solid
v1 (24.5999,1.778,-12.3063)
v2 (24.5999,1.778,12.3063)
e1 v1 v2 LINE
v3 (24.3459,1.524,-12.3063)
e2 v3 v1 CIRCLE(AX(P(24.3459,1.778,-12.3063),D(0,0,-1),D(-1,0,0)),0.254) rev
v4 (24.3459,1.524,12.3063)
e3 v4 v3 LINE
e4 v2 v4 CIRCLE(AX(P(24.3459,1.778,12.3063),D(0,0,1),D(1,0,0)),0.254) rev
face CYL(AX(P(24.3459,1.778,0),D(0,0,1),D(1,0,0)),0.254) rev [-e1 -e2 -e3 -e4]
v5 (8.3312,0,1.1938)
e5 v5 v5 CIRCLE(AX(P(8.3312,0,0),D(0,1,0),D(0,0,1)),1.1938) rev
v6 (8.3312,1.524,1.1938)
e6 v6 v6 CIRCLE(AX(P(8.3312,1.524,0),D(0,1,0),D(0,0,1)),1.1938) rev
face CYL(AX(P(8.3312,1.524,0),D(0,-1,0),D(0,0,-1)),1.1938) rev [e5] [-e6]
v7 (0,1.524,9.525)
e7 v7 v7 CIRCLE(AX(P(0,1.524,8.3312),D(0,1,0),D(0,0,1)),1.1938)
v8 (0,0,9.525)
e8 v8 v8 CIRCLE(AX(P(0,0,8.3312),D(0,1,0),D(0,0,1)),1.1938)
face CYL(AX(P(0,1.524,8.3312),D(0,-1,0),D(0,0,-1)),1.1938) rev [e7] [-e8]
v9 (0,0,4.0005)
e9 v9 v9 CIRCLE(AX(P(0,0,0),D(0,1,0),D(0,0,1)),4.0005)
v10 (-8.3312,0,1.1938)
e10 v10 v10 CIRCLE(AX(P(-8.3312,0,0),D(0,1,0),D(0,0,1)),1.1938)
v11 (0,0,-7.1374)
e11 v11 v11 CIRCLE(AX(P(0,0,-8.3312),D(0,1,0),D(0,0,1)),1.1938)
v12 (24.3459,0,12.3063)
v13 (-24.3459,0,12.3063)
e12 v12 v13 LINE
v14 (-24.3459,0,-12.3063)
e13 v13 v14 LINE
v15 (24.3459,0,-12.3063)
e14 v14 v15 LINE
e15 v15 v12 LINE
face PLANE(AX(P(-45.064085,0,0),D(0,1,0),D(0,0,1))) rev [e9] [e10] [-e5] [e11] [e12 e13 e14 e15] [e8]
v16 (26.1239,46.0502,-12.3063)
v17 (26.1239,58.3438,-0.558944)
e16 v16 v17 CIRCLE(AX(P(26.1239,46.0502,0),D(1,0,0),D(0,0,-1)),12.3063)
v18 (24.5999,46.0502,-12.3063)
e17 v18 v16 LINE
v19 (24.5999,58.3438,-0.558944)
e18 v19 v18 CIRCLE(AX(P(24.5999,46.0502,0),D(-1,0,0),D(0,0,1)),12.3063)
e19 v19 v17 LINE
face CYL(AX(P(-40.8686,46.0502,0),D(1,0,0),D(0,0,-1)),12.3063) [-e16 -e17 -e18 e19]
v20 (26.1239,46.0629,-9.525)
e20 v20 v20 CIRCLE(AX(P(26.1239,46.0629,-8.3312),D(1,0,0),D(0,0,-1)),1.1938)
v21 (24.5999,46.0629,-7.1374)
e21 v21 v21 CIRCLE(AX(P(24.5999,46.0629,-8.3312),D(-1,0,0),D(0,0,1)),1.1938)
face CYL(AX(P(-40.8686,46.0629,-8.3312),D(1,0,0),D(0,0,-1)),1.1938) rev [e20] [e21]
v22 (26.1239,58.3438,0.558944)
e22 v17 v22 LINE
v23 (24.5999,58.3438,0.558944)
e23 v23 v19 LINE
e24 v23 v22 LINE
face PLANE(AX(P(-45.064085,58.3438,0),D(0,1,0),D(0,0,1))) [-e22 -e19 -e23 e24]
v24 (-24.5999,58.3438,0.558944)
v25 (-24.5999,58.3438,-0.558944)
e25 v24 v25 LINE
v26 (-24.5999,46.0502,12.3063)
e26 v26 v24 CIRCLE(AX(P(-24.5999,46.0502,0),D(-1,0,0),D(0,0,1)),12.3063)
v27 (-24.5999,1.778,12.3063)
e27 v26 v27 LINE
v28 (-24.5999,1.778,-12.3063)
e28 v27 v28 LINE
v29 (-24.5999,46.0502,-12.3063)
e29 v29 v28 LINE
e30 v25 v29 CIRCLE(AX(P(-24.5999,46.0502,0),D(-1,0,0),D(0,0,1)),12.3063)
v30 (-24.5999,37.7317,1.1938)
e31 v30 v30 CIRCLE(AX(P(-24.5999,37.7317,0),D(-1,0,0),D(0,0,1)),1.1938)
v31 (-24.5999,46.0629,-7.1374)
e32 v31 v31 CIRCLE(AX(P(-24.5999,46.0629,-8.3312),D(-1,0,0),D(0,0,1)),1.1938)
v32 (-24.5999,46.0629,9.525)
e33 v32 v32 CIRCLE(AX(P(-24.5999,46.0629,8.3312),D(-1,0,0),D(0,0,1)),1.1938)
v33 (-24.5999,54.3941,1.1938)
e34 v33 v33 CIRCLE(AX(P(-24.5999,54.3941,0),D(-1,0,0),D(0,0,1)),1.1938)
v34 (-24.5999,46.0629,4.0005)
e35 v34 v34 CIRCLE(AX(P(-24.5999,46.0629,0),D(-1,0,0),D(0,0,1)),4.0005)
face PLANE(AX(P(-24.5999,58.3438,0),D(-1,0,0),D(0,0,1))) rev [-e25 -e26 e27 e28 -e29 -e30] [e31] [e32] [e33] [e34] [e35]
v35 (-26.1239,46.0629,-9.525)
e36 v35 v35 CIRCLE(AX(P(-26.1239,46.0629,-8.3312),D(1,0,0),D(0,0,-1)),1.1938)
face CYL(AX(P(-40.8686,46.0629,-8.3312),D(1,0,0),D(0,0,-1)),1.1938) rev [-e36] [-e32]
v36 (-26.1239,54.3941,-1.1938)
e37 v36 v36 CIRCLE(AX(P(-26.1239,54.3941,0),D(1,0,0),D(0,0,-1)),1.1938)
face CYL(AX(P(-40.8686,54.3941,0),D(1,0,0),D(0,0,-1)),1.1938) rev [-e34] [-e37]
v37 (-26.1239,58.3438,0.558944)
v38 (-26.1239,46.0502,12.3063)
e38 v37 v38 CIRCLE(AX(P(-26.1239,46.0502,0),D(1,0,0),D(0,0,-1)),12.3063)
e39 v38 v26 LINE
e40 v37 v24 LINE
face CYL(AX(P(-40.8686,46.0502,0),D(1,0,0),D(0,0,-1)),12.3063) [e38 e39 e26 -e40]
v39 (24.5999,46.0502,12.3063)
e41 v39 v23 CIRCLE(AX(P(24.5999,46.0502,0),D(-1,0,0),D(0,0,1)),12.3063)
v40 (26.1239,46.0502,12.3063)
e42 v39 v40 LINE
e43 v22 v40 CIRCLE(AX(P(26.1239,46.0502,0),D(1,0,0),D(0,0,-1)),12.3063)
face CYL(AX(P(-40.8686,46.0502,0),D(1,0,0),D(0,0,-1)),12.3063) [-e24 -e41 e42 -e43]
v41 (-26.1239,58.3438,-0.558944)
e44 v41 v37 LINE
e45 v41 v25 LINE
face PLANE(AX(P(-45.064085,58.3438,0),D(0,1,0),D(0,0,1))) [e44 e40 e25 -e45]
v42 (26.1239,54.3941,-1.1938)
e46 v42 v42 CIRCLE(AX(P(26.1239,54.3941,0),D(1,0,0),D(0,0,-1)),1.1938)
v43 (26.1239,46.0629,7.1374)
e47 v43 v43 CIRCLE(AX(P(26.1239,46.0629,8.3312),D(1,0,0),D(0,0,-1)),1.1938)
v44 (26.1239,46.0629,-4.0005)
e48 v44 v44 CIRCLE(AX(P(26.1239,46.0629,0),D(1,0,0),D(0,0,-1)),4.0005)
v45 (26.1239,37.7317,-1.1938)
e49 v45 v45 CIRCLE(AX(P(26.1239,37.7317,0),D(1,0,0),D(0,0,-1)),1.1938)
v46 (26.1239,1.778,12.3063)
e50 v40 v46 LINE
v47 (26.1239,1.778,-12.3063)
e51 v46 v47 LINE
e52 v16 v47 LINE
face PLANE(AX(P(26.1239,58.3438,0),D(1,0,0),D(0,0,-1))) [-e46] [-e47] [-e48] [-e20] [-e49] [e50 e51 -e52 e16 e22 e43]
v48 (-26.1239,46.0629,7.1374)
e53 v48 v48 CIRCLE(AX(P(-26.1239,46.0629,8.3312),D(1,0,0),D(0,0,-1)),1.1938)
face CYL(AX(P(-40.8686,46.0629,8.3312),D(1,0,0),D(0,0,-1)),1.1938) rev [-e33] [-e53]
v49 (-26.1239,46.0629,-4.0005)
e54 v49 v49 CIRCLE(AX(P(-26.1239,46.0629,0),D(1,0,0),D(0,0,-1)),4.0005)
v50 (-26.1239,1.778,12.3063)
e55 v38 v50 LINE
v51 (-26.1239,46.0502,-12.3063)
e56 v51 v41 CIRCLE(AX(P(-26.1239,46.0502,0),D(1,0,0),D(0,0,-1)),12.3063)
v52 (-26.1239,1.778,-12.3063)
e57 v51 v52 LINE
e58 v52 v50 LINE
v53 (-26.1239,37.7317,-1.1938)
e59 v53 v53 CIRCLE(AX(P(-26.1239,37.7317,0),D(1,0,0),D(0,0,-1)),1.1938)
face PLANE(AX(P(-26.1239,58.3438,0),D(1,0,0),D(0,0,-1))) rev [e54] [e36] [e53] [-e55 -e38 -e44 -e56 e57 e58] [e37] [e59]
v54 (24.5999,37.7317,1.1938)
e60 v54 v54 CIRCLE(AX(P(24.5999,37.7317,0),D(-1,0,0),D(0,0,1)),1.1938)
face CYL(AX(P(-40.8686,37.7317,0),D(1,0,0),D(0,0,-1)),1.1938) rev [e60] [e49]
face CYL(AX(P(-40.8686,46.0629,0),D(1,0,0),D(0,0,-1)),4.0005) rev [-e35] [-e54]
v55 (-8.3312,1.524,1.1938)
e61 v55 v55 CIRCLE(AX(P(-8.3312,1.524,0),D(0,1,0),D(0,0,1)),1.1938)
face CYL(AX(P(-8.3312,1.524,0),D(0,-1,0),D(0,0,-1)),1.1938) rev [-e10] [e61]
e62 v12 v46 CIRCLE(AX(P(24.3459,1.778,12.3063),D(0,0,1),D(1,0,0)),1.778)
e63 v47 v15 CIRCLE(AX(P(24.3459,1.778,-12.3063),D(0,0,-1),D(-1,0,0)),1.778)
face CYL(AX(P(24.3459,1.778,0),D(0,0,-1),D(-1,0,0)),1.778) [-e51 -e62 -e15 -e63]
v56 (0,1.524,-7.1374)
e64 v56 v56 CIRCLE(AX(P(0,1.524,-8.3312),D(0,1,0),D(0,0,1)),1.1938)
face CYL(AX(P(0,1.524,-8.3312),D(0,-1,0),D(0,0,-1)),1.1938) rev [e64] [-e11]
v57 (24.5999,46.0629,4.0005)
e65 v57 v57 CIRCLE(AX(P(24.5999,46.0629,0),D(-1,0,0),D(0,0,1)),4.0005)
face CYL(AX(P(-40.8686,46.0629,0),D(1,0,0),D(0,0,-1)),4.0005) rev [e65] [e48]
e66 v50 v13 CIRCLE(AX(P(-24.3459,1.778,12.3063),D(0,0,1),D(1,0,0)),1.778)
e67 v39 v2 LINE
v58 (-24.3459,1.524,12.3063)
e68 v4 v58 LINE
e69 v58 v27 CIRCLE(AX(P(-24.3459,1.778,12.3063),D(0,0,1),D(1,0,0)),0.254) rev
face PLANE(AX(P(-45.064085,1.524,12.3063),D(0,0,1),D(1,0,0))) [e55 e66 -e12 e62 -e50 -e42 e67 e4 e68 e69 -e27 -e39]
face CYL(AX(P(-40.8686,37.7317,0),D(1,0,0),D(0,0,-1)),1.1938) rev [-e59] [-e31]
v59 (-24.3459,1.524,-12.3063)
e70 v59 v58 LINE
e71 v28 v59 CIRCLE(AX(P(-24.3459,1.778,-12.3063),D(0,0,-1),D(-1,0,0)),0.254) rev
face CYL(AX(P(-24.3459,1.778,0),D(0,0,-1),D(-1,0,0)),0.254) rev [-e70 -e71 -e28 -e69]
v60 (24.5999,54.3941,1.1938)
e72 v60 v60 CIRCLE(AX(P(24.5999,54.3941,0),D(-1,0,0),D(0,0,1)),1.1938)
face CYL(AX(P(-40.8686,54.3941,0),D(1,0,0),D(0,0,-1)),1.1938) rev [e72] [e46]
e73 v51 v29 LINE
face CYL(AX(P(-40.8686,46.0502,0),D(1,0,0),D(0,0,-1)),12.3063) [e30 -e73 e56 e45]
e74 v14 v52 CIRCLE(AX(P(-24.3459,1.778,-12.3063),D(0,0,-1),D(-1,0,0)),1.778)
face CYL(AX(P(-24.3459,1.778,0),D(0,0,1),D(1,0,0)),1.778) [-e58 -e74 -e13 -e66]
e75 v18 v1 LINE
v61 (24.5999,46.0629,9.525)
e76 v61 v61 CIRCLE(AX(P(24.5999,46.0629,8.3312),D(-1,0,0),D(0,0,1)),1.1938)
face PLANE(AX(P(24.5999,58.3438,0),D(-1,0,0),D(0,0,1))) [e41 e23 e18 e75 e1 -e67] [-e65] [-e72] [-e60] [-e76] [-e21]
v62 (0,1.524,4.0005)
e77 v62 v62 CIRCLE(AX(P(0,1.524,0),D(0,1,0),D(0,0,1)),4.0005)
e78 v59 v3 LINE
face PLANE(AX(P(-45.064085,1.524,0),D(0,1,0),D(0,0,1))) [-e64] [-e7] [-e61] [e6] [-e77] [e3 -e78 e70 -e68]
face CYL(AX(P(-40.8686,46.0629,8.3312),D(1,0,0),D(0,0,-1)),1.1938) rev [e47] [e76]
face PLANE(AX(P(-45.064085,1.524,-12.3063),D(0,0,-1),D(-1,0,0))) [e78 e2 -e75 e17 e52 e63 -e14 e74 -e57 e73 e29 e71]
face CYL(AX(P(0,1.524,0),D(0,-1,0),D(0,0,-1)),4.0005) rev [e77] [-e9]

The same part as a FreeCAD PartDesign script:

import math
import FreeCAD as App
import Part
import Sketcher
from FreeCAD import Vector
Q = App.Units.Quantity


def edges_at(feature, points):
    """Names of the edges that pass closest to the given points."""
    edges = feature.Shape.Edges
    near = lambda p: min(range(len(edges)), key=lambda i: edges[i].distToShape(Part.Vertex(*p))[0])
    return sorted({f"Edge{near(p) + 1}" for p in points})

doc = App.newDocument("Part")
params = doc.addObject("Spreadsheet::Sheet", "Params")
for row, (alias, value) in enumerate([
    ("sketch1_diameter", "0.094 in"),
    ("sketch1_diameter2", "0.315 in"),
    ("sketch1_width", "1.937 in"),
    ("sketch1_height", "0.969 in"),
    ("pad1_length", "0.06 in"),
    ("sketch2_width", "0.06 in"),
    ("sketch2_height", "0.969 in"),
    ("pad2_length", "2.297 in"),
    ("sketch3_diameter", "0.315 in"),
    ("sketch3_diameter2", "0.094 in"),
    ("sketch3_width", "0.484 in"),
    ("fillet_radius", "0.01 in"),
    ("fillet2_radius", "0.07 in"),
], start=1):
    params.set(f"A{row}", alias)
    params.set(f"B{row}", "=" + value)
    params.setAlias(f"B{row}", alias)

body = doc.addObject("PartDesign::Body", "Body")

# Sketch on XZ plane
sketch1 = doc.addObject("Sketcher::SketchObject", "Sketch")
body.addObject(sketch1)
sketch1.AttachmentSupport = (doc.XZ_Plane, [""])
sketch1.MapMode = "FlatFace"
sketch1.addGeometry(Part.LineSegment(Vector(-24.6, -12.3, 0), Vector(-24.6, 12.3, 0)), False)
sketch1.addGeometry(Part.LineSegment(Vector(-24.6, 12.3, 0), Vector(24.6, 12.3, 0)), False)
sketch1.addGeometry(Part.LineSegment(Vector(24.6, 12.3, 0), Vector(24.6, -12.3, 0)), False)
sketch1.addGeometry(Part.LineSegment(Vector(24.6, -12.3, 0), Vector(-24.6, -12.3, 0)), False)
sketch1.addGeometry(Part.Circle(Vector(0, 8.3, 0), Vector(0, 0, 1), 1.2), False)
sketch1.addGeometry(Part.Circle(Vector(-8.3, 0, 0), Vector(0, 0, 1), 1.2), False)
sketch1.addGeometry(Part.Circle(Vector(0, 0, 0), Vector(0, 0, 1), 4), False)
sketch1.addGeometry(Part.Circle(Vector(8.3, 0, 0), Vector(0, 0, 1), 1.2), False)
sketch1.addGeometry(Part.Circle(Vector(0, -8.3, 0), Vector(0, 0, 1), 1.2), False)
sketch1.addConstraint(Sketcher.Constraint("Coincident", 0, 2, 1, 1))
sketch1.addConstraint(Sketcher.Constraint("Coincident", 1, 2, 2, 1))
sketch1.addConstraint(Sketcher.Constraint("Coincident", 2, 2, 3, 1))
sketch1.addConstraint(Sketcher.Constraint("Coincident", 3, 2, 0, 1))
sketch1.addConstraint(Sketcher.Constraint("Vertical", 0))
sketch1.addConstraint(Sketcher.Constraint("Horizontal", 1))
sketch1.addConstraint(Sketcher.Constraint("Vertical", 2))
sketch1.addConstraint(Sketcher.Constraint("Horizontal", 3))
sketch1.addConstraint(Sketcher.Constraint("Coincident", 6, 3, -1, 1))
sketch1.addConstraint(Sketcher.Constraint("Equal", 4, 5))
sketch1.addConstraint(Sketcher.Constraint("Equal", 5, 7))
sketch1.addConstraint(Sketcher.Constraint("Equal", 7, 8))
sketch1.addConstraint(Sketcher.Constraint("Symmetric", 5, 3, 7, 3, -1, 1))
sketch1.addConstraint(Sketcher.Constraint("Symmetric", 4, 3, 8, 3, -1, 1))
sketch1.addConstraint(Sketcher.Constraint("Symmetric", 0, 2, 2, 2, -1, 1))
sketch1.addConstraint(Sketcher.Constraint("PointOnObject", 4, 3, -2))
sketch1.addConstraint(Sketcher.Constraint("PointOnObject", 5, 3, -1))
sketch1.addConstraint(Sketcher.Constraint("Diameter", 4, Q("0.094 in")))
sketch1.addConstraint(Sketcher.Constraint("Diameter", 6, Q("0.315 in")))
sketch1.addConstraint(Sketcher.Constraint("DistanceX", 1, 1, 1, 2, Q("1.937 in")))
sketch1.addConstraint(Sketcher.Constraint("DistanceY", 0, 1, 0, 2, Q("0.969 in")))
sketch1.addConstraint(Sketcher.Constraint("DistanceY", -1, 1, 4, 3, Q("0.328 in")))
sketch1.addConstraint(Sketcher.Constraint("DistanceX", 5, 3, -1, 1, Q("0.328 in")))
sketch1.setExpression("Constraints[17]", "Params.sketch1_diameter")
sketch1.setExpression("Constraints[18]", "Params.sketch1_diameter2")
sketch1.setExpression("Constraints[19]", "Params.sketch1_width")
sketch1.setExpression("Constraints[20]", "Params.sketch1_height")
pad1 = doc.addObject("PartDesign::Pad", "Pad")
body.addObject(pad1)
pad1.Profile = sketch1
pad1.setExpression("Length", "Params.pad1_length")
pad1.Reversed = True

# Sketch on XZ plane
sketch2 = doc.addObject("Sketcher::SketchObject", "Sketch001")
body.addObject(sketch2)
sketch2.AttachmentSupport = (doc.XZ_Plane, [""])
sketch2.MapMode = "FlatFace"
sketch2.addGeometry(Part.LineSegment(Vector(24.6, -12.3, 0), Vector(24.6, 12.3, 0)), False)
sketch2.addGeometry(Part.LineSegment(Vector(24.6, 12.3, 0), Vector(26.1, 12.3, 0)), False)
sketch2.addGeometry(Part.LineSegment(Vector(26.1, 12.3, 0), Vector(26.1, -12.3, 0)), False)
sketch2.addGeometry(Part.LineSegment(Vector(26.1, -12.3, 0), Vector(24.6, -12.3, 0)), False)
sketch2.addGeometry(Part.LineSegment(Vector(-26.1, -12.3, 0), Vector(-26.1, 12.3, 0)), False)
sketch2.addGeometry(Part.LineSegment(Vector(-26.1, 12.3, 0), Vector(-24.6, 12.3, 0)), False)
sketch2.addGeometry(Part.LineSegment(Vector(-24.6, 12.3, 0), Vector(-24.6, -12.3, 0)), False)
sketch2.addGeometry(Part.LineSegment(Vector(-24.6, -12.3, 0), Vector(-26.1, -12.3, 0)), False)
sketch2.addConstraint(Sketcher.Constraint("Coincident", 0, 2, 1, 1))
sketch2.addConstraint(Sketcher.Constraint("Coincident", 1, 2, 2, 1))
sketch2.addConstraint(Sketcher.Constraint("Coincident", 2, 2, 3, 1))
sketch2.addConstraint(Sketcher.Constraint("Coincident", 3, 2, 0, 1))
sketch2.addConstraint(Sketcher.Constraint("Coincident", 4, 2, 5, 1))
sketch2.addConstraint(Sketcher.Constraint("Coincident", 5, 2, 6, 1))
sketch2.addConstraint(Sketcher.Constraint("Coincident", 6, 2, 7, 1))
sketch2.addConstraint(Sketcher.Constraint("Coincident", 7, 2, 4, 1))
sketch2.addConstraint(Sketcher.Constraint("Vertical", 0))
sketch2.addConstraint(Sketcher.Constraint("Horizontal", 1))
sketch2.addConstraint(Sketcher.Constraint("Vertical", 2))
sketch2.addConstraint(Sketcher.Constraint("Horizontal", 3))
sketch2.addConstraint(Sketcher.Constraint("Vertical", 4))
sketch2.addConstraint(Sketcher.Constraint("Horizontal", 5))
sketch2.addConstraint(Sketcher.Constraint("Vertical", 6))
sketch2.addConstraint(Sketcher.Constraint("Horizontal", 7))
sketch2.addConstraint(Sketcher.Constraint("Symmetric", 2, 2, 4, 2, -1, 1))
sketch2.addConstraint(Sketcher.Constraint("Symmetric", 0, 2, 6, 2, -1, 1))
sketch2.addConstraint(Sketcher.Constraint("Horizontal", 1, 2, 4, 2))
sketch2.addConstraint(Sketcher.Constraint("DistanceX", 1, 1, 1, 2, Q("0.06 in")))
sketch2.addConstraint(Sketcher.Constraint("DistanceY", 0, 1, 0, 2, Q("0.969 in")))
sketch2.addConstraint(Sketcher.Constraint("DistanceX", 4, 2, 0, 2, Q("1.997 in")))
sketch2.setExpression("Constraints[19]", "Params.sketch2_width")
sketch2.setExpression("Constraints[20]", "Params.sketch2_height")
pad2 = doc.addObject("PartDesign::Pad", "Pad001")
body.addObject(pad2)
pad2.Profile = sketch2
pad2.setExpression("Length", "Params.pad2_length")
pad2.Reversed = True

# Sketch on YZ plane
sketch3 = doc.addObject("Sketcher::SketchObject", "Sketch002")
body.addObject(sketch3)
sketch3.AttachmentSupport = (doc.YZ_Plane, [""])
sketch3.MapMode = "FlatFace"
sketch3.addGeometry(Part.LineSegment(Vector(58.3, 0.6, 0), Vector(58.3, 12.3, 0)), False)
sketch3.addGeometry(Part.LineSegment(Vector(58.3, 12.3, 0), Vector(46.1, 12.3, 0)), False)
sketch3.addGeometry(Part.ArcOfCircle(Part.Circle(Vector(46.1, 0, 0), Vector(0, 0, 1), 12.3), math.radians(3), math.radians(90)), False)
sketch3.addGeometry(Part.LineSegment(Vector(58.3, -12.3, 0), Vector(58.3, -0.6, 0)), False)
sketch3.addGeometry(Part.ArcOfCircle(Part.Circle(Vector(46.1, 0, 0), Vector(0, 0, 1), 12.3), math.radians(-90), math.radians(-3)), False)
sketch3.addGeometry(Part.LineSegment(Vector(46.1, -12.3, 0), Vector(58.3, -12.3, 0)), False)
sketch3.addGeometry(Part.Circle(Vector(46.1, 0, 0), Vector(0, 0, 1), 4), False)
sketch3.addGeometry(Part.Circle(Vector(46.1, -8.3, 0), Vector(0, 0, 1), 1.2), False)
sketch3.addGeometry(Part.Circle(Vector(54.4, 0, 0), Vector(0, 0, 1), 1.2), False)
sketch3.addGeometry(Part.Circle(Vector(46.1, 8.3, 0), Vector(0, 0, 1), 1.2), False)
sketch3.addGeometry(Part.Circle(Vector(37.7, 0, 0), Vector(0, 0, 1), 1.2), False)
sketch3.addConstraint(Sketcher.Constraint("Coincident", 0, 2, 1, 1))
sketch3.addConstraint(Sketcher.Constraint("Tangent", 1, 2, 2, 2))
sketch3.addConstraint(Sketcher.Constraint("Coincident", 2, 1, 0, 1))
sketch3.addConstraint(Sketcher.Constraint("Coincident", 3, 2, 4, 2))
sketch3.addConstraint(Sketcher.Constraint("Tangent", 4, 1, 5, 1))
sketch3.addConstraint(Sketcher.Constraint("Coincident", 5, 2, 3, 1))
sketch3.addConstraint(Sketcher.Constraint("Vertical", 0))
sketch3.addConstraint(Sketcher.Constraint("Horizontal", 1))
sketch3.addConstraint(Sketcher.Constraint("Vertical", 3))
sketch3.addConstraint(Sketcher.Constraint("Horizontal", 5))
sketch3.addConstraint(Sketcher.Constraint("Coincident", 4, 3, 2, 3))
sketch3.addConstraint(Sketcher.Constraint("Equal", 2, 4))
sketch3.addConstraint(Sketcher.Constraint("Equal", 7, 8))
sketch3.addConstraint(Sketcher.Constraint("Equal", 8, 9))
sketch3.addConstraint(Sketcher.Constraint("Equal", 9, 10))
sketch3.addConstraint(Sketcher.Constraint("Symmetric", 7, 3, 9, 3, -1))
sketch3.addConstraint(Sketcher.Constraint("Symmetric", 2, 1, 3, 2, -1))
sketch3.addConstraint(Sketcher.Constraint("PointOnObject", 6, 3, -1))
sketch3.addConstraint(Sketcher.Constraint("PointOnObject", 8, 3, -1))
sketch3.addConstraint(Sketcher.Constraint("PointOnObject", 10, 3, -1))
sketch3.addConstraint(Sketcher.Constraint("Vertical", 6, 3, 7, 3))
sketch3.addConstraint(Sketcher.Constraint("Diameter", 6, Q("0.315 in")))
sketch3.addConstraint(Sketcher.Constraint("Diameter", 7, Q("0.094 in")))
sketch3.addConstraint(Sketcher.Constraint("Radius", 2, Q("0.4845 in")))
sketch3.addConstraint(Sketcher.Constraint("DistanceX", 1, 2, 1, 1, Q("0.484 in")))
sketch3.addConstraint(Sketcher.Constraint("DistanceX", -1, 1, 2, 3, Q("1.813 in")))
sketch3.addConstraint(Sketcher.Constraint("DistanceY", 7, 3, -1, 1, Q("0.328 in")))
sketch3.addConstraint(Sketcher.Constraint("DistanceX", 6, 3, 8, 3, Q("0.328 in")))
sketch3.addConstraint(Sketcher.Constraint("DistanceX", 10, 3, 6, 3, Q("0.328 in")))
sketch3.addConstraint(Sketcher.Constraint("DistanceX", -1, 1, 6, 3, Q("1.8135 in")))
sketch3.setExpression("Constraints[21]", "Params.sketch3_diameter")
sketch3.setExpression("Constraints[22]", "Params.sketch3_diameter2")
sketch3.setExpression("Constraints[24]", "Params.sketch3_width")
pocket1 = doc.addObject("PartDesign::Pocket", "Pocket")
body.addObject(pocket1)
pocket1.Profile = sketch3
pocket1.Type = "ThroughAll"
pocket1.Midplane = True
doc.recompute()

fillet = doc.addObject("PartDesign::Fillet", "Fillet")
body.addObject(fillet)
fillet.Base = (pocket1, edges_at(pocket1, [(-24.6, 1.524, 0), (24.6, 1.524, 0)]))
fillet.setExpression("Radius", "Params.fillet_radius")
doc.recompute()

fillet2 = doc.addObject("PartDesign::Fillet", "Fillet001")
body.addObject(fillet2)
fillet2.Base = (fillet, edges_at(fillet, [(-26.124, 0, 0), (26.124, 0, 0)]))
fillet2.setExpression("Radius", "Params.fillet2_radius")

doc.recompute()
